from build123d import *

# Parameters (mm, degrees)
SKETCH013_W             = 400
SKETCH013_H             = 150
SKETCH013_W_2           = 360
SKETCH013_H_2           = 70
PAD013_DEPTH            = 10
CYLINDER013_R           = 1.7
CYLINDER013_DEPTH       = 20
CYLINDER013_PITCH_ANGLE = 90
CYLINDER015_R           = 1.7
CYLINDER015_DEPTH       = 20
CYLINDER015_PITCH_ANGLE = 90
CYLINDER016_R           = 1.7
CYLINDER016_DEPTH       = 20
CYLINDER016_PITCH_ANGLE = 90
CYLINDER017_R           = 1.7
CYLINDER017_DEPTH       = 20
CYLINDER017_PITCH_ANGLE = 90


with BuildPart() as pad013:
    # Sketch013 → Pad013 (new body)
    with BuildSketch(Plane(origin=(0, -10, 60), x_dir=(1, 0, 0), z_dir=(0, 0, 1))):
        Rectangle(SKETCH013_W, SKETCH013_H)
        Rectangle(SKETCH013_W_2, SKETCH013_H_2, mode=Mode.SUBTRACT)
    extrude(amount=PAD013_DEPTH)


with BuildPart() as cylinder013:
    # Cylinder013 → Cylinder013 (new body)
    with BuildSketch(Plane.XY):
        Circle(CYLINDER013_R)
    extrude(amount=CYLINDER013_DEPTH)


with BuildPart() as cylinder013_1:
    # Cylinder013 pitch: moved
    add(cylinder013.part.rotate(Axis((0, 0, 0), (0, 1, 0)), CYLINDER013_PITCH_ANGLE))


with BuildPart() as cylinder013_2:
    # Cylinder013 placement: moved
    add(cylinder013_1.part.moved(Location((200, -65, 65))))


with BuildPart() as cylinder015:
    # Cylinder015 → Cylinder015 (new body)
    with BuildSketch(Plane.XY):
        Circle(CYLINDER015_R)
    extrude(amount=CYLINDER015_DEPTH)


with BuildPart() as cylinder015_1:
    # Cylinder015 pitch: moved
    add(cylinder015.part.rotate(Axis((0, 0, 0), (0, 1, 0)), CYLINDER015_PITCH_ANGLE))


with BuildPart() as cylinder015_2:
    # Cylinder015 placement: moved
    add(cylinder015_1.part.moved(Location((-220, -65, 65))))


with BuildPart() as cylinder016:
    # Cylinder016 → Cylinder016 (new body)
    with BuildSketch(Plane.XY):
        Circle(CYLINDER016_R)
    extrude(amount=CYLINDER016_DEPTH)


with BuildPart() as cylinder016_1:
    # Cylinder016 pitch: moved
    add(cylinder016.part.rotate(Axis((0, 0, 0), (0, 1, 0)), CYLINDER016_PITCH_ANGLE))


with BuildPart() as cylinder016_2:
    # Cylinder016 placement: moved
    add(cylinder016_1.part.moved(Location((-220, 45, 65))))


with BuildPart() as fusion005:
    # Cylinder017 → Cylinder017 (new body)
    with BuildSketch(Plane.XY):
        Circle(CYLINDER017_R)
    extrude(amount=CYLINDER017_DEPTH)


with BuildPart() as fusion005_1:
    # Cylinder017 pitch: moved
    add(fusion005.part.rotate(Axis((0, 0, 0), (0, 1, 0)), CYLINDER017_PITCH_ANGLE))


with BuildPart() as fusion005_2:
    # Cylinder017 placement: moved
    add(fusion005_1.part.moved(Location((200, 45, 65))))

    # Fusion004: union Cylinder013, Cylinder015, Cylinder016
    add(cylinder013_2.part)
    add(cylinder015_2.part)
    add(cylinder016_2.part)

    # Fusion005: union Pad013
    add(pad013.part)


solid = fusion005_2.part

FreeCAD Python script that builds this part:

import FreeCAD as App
import Part
import Sketcher

V = App.Vector
Q = App.Units.Quantity


def add_polygon(sketch, points):
    """Adds a closed chain of lines whose ends are joined by coincident constraints."""
    first, n = sketch.GeometryCount, len(points)
    for a, b in zip(points, points[1:] + points[:1]):
        sketch.addGeometry(Part.LineSegment(App.Vector(*a, 0), App.Vector(*b, 0)), False)
    for i in range(n):
        sketch.addConstraint(Sketcher.Constraint("Coincident", first + i, 2, first + (i + 1) % n, 1))

doc = App.newDocument("Part")
body = doc.addObject("PartDesign::Body", "Body")

# Sketch on XY plane
sketch1 = body.newObject("Sketcher::SketchObject", "Sketch")
sketch1.AttachmentSupport = (doc.getObject("XY_Plane"), [""])
sketch1.MapMode = "FlatFace"
sketch1.AttachmentOffset = App.Placement(V(0, 0, 60), App.Rotation())
add_polygon(sketch1, [(-200, 65), (-200, -85), (200, -85), (200, 65)])  # lines 0-3
add_polygon(sketch1, [(180, -45), (-180, -45), (-180, 25), (180, 25)])  # lines 4-7
sketch1.addConstraint(Sketcher.Constraint("Vertical", 0))
sketch1.addConstraint(Sketcher.Constraint("Horizontal", 1))
sketch1.addConstraint(Sketcher.Constraint("Vertical", 2))
sketch1.addConstraint(Sketcher.Constraint("Horizontal", 3))
sketch1.addConstraint(Sketcher.Constraint("Horizontal", 4))
sketch1.addConstraint(Sketcher.Constraint("Vertical", 5))
sketch1.addConstraint(Sketcher.Constraint("Horizontal", 6))
sketch1.addConstraint(Sketcher.Constraint("Vertical", 7))
sketch1.addConstraint(Sketcher.Constraint("DistanceX", 1, 1, 1, 2, Q("400 mm")))
sketch1.addConstraint(Sketcher.Constraint("DistanceX", 4, 2, 4, 1, Q("360 mm")))
sketch1.addConstraint(Sketcher.Constraint("DistanceY", 0, 2, 0, 1, Q("150 mm")))
sketch1.addConstraint(Sketcher.Constraint("DistanceY", 5, 1, 5, 2, Q("70 mm")))
sketch1.addConstraint(Sketcher.Constraint("DistanceX", 0, 2, -1, 1, Q("200 mm")))
sketch1.addConstraint(Sketcher.Constraint("DistanceY", 0, 2, -1, 1, Q("85 mm")))
sketch1.addConstraint(Sketcher.Constraint("DistanceX", 4, 2, -1, 1, Q("180 mm")))
sketch1.addConstraint(Sketcher.Constraint("DistanceY", 4, 2, -1, 1, Q("45 mm")))
pad1 = body.newObject("PartDesign::Pad", "Pad")
pad1.Profile = sketch1
pad1.Length = 10
body2 = doc.addObject("PartDesign::Body", "Body001")

# Sketch on XY plane
sketch2 = body2.newObject("Sketcher::SketchObject", "Sketch001")
sketch2.AttachmentSupport = (doc.getObject("XY_Plane001"), [""])
sketch2.MapMode = "FlatFace"
sketch2.addGeometry(Part.Circle(V(0, 0, 0), V(0, 0, 1), 1.7), False)
sketch2.addConstraint(Sketcher.Constraint("Coincident", 0, 3, -1, 1))
sketch2.addConstraint(Sketcher.Constraint("Diameter", 0, Q("3.4 mm")))
pad2 = body2.newObject("PartDesign::Pad", "Pad001")
pad2.Profile = sketch2
pad2.Length = 20
body3 = doc.addObject("PartDesign::Body", "Body002")
doc.recompute()

body2.Placement = App.Placement(V(0, 0, 0), App.Rotation(V(0, 1, 0), 90))
boolean = body3.newObject("PartDesign::Boolean", "Boolean")
boolean.Type = "Fuse"
boolean.addObjects([body2])
body4 = doc.addObject("PartDesign::Body", "Body003")
doc.recompute()

body3.Placement = App.Placement(V(200, -65, 65), App.Rotation(V(0, 0, 1), 0))
boolean2 = body4.newObject("PartDesign::Boolean", "Boolean001")
boolean2.Type = "Fuse"
boolean2.addObjects([body3])
body5 = doc.addObject("PartDesign::Body", "Body004")

# Sketch on XY plane
sketch3 = body5.newObject("Sketcher::SketchObject", "Sketch002")
sketch3.AttachmentSupport = (doc.getObject("XY_Plane004"), [""])
sketch3.MapMode = "FlatFace"
sketch3.addGeometry(Part.Circle(V(0, 0, 0), V(0, 0, 1), 1.7), False)
sketch3.addConstraint(Sketcher.Constraint("Coincident", 0, 3, -1, 1))
sketch3.addConstraint(Sketcher.Constraint("Diameter", 0, Q("3.4 mm")))
pad3 = body5.newObject("PartDesign::Pad", "Pad002")
pad3.Profile = sketch3
pad3.Length = 20
body6 = doc.addObject("PartDesign::Body", "Body005")
doc.recompute()

body5.Placement = App.Placement(V(0, 0, 0), App.Rotation(V(0, 1, 0), 90))
boolean3 = body6.newObject("PartDesign::Boolean", "Boolean002")
boolean3.Type = "Fuse"
boolean3.addObjects([body5])
body7 = doc.addObject("PartDesign::Body", "Body006")
doc.recompute()

body6.Placement = App.Placement(V(-220, -65, 65), App.Rotation(V(0, 0, 1), 0))
boolean4 = body7.newObject("PartDesign::Boolean", "Boolean003")
boolean4.Type = "Fuse"
boolean4.addObjects([body6])
body8 = doc.addObject("PartDesign::Body", "Body007")

# Sketch on XY plane
sketch4 = body8.newObject("Sketcher::SketchObject", "Sketch003")
sketch4.AttachmentSupport = (doc.getObject("XY_Plane007"), [""])
sketch4.MapMode = "FlatFace"
sketch4.addGeometry(Part.Circle(V(0, 0, 0), V(0, 0, 1), 1.7), False)
sketch4.addConstraint(Sketcher.Constraint("Coincident", 0, 3, -1, 1))
sketch4.addConstraint(Sketcher.Constraint("Diameter", 0, Q("3.4 mm")))
pad4 = body8.newObject("PartDesign::Pad", "Pad003")
pad4.Profile = sketch4
pad4.Length = 20
body9 = doc.addObject("PartDesign::Body", "Body008")
doc.recompute()

body8.Placement = App.Placement(V(0, 0, 0), App.Rotation(V(0, 1, 0), 90))
boolean5 = body9.newObject("PartDesign::Boolean", "Boolean004")
boolean5.Type = "Fuse"
boolean5.addObjects([body8])
body10 = doc.addObject("PartDesign::Body", "Body009")
doc.recompute()

body9.Placement = App.Placement(V(-220, 45, 65), App.Rotation(V(0, 0, 1), 0))
boolean6 = body10.newObject("PartDesign::Boolean", "Boolean005")
boolean6.Type = "Fuse"
boolean6.addObjects([body9])
body11 = doc.addObject("PartDesign::Body", "Body010")

# Sketch on XY plane
sketch5 = body11.newObject("Sketcher::SketchObject", "Sketch004")
sketch5.AttachmentSupport = (doc.getObject("XY_Plane010"), [""])
sketch5.MapMode = "FlatFace"
sketch5.addGeometry(Part.Circle(V(0, 0, 0), V(0, 0, 1), 1.7), False)
sketch5.addConstraint(Sketcher.Constraint("Coincident", 0, 3, -1, 1))
sketch5.addConstraint(Sketcher.Constraint("Diameter", 0, Q("3.4 mm")))
pad5 = body11.newObject("PartDesign::Pad", "Pad004")
pad5.Profile = sketch5
pad5.Length = 20
body12 = doc.addObject("PartDesign::Body", "Body011")
doc.recompute()

body11.Placement = App.Placement(V(0, 0, 0), App.Rotation(V(0, 1, 0), 90))
boolean7 = body12.newObject("PartDesign::Boolean", "Boolean006")
boolean7.Type = "Fuse"
boolean7.addObjects([body11])
body13 = doc.addObject("PartDesign::Body", "Body012")
body13.AllowCompound = True
doc.recompute()

body12.Placement = App.Placement(V(200, 45, 65), App.Rotation(V(0, 0, 1), 0))
boolean8 = body13.newObject("PartDesign::Boolean", "Boolean007")
boolean8.Type = "Fuse"
boolean8.addObjects([body12])
doc.recompute()

boolean9 = body13.newObject("PartDesign::Boolean", "Boolean008")
boolean9.Type = "Fuse"
boolean9.addObjects([body4])
doc.recompute()

boolean10 = body13.newObject("PartDesign::Boolean", "Boolean009")
boolean10.Type = "Fuse"
boolean10.addObjects([body7])
doc.recompute()

boolean11 = body13.newObject("PartDesign::Boolean", "Boolean010")
boolean11.Type = "Fuse"
boolean11.addObjects([body10])
doc.recompute()

boolean12 = body13.newObject("PartDesign::Boolean", "Boolean011")
boolean12.Type = "Fuse"
boolean12.addObjects([body])

doc.recompute()
